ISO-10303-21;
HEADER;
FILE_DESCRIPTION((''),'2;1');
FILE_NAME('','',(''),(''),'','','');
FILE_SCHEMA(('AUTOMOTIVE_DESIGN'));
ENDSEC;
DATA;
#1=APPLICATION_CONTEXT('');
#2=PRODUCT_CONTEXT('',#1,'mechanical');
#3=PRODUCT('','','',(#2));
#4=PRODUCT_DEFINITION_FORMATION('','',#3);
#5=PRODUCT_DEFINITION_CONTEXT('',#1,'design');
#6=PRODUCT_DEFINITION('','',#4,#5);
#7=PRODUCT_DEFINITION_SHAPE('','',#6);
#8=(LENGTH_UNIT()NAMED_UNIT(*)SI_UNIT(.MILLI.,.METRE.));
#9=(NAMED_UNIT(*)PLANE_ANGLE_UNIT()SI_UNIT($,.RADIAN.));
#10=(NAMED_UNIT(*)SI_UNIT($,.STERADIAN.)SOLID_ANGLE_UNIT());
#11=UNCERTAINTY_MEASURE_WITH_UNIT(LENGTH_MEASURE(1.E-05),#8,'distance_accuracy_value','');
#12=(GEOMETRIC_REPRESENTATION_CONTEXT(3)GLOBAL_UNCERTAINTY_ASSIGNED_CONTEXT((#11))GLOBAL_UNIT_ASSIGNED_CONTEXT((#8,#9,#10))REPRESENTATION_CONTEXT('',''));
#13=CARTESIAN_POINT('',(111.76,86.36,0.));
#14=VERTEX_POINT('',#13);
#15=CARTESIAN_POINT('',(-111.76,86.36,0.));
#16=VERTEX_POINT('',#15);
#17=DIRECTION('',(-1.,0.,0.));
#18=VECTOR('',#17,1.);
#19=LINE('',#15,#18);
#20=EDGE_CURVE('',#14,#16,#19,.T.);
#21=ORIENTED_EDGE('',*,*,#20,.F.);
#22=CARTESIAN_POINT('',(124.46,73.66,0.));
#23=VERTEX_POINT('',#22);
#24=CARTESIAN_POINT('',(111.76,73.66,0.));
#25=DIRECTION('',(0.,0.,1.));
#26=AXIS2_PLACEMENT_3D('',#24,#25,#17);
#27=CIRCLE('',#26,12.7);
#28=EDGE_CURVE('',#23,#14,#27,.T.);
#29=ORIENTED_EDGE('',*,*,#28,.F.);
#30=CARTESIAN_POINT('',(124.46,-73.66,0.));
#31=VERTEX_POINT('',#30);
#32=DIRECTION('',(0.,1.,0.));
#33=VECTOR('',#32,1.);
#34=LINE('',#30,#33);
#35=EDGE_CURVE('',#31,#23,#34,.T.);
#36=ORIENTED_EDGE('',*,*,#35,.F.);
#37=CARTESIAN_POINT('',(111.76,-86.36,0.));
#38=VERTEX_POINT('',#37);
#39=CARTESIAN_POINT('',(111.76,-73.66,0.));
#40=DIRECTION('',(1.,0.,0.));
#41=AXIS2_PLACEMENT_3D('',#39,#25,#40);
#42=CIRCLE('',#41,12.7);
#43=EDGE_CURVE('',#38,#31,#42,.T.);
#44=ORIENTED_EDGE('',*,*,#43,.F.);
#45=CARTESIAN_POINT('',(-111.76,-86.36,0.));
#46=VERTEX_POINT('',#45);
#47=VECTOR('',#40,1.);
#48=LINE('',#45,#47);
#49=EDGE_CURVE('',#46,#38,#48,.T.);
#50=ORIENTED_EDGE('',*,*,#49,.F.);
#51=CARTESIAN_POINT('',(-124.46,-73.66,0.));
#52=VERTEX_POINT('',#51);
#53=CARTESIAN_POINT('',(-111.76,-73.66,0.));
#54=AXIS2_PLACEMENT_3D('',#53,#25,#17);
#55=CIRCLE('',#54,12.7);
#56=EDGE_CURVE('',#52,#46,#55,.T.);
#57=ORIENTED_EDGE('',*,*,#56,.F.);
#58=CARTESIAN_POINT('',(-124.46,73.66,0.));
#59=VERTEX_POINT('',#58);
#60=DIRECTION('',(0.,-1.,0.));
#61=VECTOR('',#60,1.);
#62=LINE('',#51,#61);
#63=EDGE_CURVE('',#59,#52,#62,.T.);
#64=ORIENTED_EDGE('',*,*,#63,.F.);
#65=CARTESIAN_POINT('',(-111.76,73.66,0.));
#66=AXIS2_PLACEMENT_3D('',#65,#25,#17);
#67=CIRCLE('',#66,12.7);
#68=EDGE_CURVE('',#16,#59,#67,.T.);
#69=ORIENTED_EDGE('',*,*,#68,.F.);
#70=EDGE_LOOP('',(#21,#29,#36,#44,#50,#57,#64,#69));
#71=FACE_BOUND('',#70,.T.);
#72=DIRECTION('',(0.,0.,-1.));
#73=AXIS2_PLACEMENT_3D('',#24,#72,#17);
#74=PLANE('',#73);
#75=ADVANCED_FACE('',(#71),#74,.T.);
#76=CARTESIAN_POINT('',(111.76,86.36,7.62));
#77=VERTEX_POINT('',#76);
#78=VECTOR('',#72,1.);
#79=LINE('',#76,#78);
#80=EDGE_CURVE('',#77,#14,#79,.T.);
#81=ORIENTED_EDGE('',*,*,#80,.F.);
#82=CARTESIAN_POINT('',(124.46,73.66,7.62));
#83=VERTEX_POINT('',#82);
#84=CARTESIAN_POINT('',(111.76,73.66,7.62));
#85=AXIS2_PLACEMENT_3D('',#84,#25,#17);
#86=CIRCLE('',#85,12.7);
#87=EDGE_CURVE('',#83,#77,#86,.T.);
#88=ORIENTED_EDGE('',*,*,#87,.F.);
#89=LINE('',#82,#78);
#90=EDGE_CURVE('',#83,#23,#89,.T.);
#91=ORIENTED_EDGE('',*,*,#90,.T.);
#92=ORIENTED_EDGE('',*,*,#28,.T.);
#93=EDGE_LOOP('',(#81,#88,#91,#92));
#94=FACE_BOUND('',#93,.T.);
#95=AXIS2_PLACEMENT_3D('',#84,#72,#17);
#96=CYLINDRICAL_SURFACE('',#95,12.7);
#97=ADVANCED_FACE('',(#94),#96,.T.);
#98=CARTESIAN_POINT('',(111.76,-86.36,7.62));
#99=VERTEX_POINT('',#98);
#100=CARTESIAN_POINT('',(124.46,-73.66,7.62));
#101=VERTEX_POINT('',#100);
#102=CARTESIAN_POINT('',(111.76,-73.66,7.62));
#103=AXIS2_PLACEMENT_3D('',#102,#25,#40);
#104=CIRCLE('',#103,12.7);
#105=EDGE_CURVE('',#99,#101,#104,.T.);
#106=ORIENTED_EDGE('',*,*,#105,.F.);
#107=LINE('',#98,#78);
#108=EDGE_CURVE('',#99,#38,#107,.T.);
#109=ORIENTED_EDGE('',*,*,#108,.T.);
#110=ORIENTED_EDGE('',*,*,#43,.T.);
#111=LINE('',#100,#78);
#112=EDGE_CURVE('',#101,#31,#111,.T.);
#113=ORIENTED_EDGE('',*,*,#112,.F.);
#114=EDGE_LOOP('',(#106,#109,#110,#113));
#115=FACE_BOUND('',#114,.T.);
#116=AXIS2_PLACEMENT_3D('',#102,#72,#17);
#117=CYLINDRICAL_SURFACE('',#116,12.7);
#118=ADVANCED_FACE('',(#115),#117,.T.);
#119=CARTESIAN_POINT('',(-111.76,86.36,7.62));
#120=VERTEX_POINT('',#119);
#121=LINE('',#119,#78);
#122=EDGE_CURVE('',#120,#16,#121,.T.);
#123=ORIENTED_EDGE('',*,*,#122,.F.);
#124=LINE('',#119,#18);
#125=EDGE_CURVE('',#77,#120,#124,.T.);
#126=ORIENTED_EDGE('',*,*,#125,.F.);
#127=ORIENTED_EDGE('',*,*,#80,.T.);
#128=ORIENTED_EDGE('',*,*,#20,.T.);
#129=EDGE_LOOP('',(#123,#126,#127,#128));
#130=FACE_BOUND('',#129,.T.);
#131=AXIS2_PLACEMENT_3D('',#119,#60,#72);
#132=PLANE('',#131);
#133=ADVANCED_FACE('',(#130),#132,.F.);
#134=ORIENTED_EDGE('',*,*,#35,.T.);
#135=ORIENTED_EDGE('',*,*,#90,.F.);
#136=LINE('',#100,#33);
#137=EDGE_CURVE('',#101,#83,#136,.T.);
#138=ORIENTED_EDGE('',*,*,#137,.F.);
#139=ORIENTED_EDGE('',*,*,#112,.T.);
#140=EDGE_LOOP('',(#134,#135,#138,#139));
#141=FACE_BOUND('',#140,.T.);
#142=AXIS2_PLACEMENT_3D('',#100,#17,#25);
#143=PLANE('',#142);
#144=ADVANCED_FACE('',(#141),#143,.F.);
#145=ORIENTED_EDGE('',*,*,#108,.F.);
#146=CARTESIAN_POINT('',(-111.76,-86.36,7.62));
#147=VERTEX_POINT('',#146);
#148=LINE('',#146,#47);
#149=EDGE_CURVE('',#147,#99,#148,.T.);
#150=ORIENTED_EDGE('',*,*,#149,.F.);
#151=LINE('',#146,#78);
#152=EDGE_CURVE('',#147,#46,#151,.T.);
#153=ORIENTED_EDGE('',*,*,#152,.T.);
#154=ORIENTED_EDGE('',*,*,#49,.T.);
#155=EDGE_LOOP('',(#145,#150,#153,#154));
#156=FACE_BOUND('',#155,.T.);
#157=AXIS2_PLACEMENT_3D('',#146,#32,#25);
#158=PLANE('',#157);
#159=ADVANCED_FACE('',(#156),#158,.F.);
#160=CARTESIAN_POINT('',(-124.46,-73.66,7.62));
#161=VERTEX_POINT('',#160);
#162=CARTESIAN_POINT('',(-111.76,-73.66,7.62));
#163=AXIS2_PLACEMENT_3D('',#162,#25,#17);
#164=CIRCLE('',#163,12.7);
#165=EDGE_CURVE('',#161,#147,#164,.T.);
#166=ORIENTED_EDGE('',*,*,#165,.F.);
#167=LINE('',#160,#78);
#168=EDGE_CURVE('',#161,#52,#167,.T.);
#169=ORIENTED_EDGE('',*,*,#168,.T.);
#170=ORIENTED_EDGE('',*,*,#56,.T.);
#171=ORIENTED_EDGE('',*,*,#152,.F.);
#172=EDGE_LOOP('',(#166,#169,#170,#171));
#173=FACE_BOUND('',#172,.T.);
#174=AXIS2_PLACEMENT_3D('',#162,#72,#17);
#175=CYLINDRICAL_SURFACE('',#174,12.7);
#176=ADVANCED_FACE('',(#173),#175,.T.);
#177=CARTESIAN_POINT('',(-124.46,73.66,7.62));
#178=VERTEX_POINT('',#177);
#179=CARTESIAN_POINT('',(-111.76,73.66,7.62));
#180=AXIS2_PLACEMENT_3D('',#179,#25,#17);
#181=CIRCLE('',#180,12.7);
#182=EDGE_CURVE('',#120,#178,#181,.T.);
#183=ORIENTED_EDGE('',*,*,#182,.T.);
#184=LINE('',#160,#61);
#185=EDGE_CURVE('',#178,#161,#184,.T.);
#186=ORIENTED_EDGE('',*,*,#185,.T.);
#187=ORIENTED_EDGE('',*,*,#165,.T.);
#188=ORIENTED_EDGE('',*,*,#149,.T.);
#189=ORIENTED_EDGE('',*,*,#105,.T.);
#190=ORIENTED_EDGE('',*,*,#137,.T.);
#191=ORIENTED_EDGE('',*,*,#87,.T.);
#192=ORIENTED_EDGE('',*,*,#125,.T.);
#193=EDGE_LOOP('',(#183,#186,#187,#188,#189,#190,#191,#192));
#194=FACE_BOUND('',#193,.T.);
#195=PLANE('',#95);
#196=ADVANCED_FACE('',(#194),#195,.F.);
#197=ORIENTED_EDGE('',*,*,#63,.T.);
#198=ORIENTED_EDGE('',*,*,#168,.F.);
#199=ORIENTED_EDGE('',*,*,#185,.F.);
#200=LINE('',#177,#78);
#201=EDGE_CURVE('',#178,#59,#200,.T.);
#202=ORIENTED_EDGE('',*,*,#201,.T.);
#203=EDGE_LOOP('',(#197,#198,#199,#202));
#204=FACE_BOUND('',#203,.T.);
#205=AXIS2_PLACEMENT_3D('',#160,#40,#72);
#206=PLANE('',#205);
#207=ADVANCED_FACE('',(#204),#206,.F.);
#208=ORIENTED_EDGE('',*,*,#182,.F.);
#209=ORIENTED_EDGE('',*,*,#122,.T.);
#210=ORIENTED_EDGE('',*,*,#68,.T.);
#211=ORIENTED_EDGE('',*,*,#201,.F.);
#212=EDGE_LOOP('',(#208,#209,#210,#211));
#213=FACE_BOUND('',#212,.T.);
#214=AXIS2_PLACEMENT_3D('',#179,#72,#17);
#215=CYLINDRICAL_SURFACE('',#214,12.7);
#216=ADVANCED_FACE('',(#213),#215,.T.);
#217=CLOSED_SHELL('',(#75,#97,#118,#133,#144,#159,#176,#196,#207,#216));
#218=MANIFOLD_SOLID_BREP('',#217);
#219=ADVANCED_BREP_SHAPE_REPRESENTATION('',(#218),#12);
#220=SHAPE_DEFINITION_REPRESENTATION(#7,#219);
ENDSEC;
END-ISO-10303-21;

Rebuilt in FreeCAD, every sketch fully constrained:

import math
import FreeCAD as App
import Part
import Sketcher
from FreeCAD import Vector
Q = App.Units.Quantity

doc = App.newDocument("Part")
body = doc.addObject("PartDesign::Body", "Body")

# Sketch on XY plane
sketch1 = body.newObject("Sketcher::SketchObject", "Sketch")
sketch1.AttachmentSupport = (doc.getObject("XY_Plane"), [""])
sketch1.MapMode = "FlatFace"
sketch1.addGeometry([
    Part.LineSegment(Vector(-111.76, -86.36, 0), Vector(111.76, -86.36, 0)),  # 0
    Part.ArcOfCircle(Part.Circle(Vector(111.76, -73.66, 0), Vector(0, 0, 1), 12.7), math.radians(-90), math.radians(0)),  # 1
    Part.LineSegment(Vector(124.46, -73.66, 0), Vector(124.46, 73.66, 0)),  # 2
    Part.ArcOfCircle(Part.Circle(Vector(111.76, 73.66, 0), Vector(0, 0, 1), 12.7), math.radians(0), math.radians(90)),  # 3
    Part.LineSegment(Vector(111.76, 86.36, 0), Vector(-111.76, 86.36, 0)),  # 4
    Part.ArcOfCircle(Part.Circle(Vector(-111.76, 73.66, 0), Vector(0, 0, 1), 12.7), math.radians(90), math.radians(180)),  # 5
    Part.LineSegment(Vector(-124.46, 73.66, 0), Vector(-124.46, -73.66, 0)),  # 6
    Part.ArcOfCircle(Part.Circle(Vector(-111.76, -73.66, 0), Vector(0, 0, 1), 12.7), math.radians(180), math.radians(270)),  # 7
], False)
sketch1.addConstraint([
    Sketcher.Constraint("Tangent", 0, 2, 1, 1),
    Sketcher.Constraint("Tangent", 1, 2, 2, 1),
    Sketcher.Constraint("Tangent", 2, 2, 3, 1),
    Sketcher.Constraint("Tangent", 3, 2, 4, 1),
    Sketcher.Constraint("Tangent", 4, 2, 5, 1),
    Sketcher.Constraint("Tangent", 5, 2, 6, 1),
    Sketcher.Constraint("Tangent", 6, 2, 7, 1),
    Sketcher.Constraint("Tangent", 7, 2, 0, 1),
    Sketcher.Constraint("Horizontal", 0),
    Sketcher.Constraint("Vertical", 2),
    Sketcher.Constraint("Horizontal", 4),
    Sketcher.Constraint("Vertical", 6),
    Sketcher.Constraint("Equal", 1, 3),
    Sketcher.Constraint("Equal", 3, 5),
    Sketcher.Constraint("Equal", 5, 7),
    Sketcher.Constraint("Symmetric", 1, 3, 5, 3, -1, 1),
    Sketcher.Constraint("Radius", 1, Q("0.5 in")),
    Sketcher.Constraint("DistanceX", 0, 1, 0, 2, Q("8.8 in")),
    Sketcher.Constraint("DistanceY", 2, 1, 2, 2, Q("5.8 in")),
])
pad1 = body.newObject("PartDesign::Pad", "Pad")
pad1.Profile = sketch1
pad1.Length = Q("0.3 in")

doc.recompute()
